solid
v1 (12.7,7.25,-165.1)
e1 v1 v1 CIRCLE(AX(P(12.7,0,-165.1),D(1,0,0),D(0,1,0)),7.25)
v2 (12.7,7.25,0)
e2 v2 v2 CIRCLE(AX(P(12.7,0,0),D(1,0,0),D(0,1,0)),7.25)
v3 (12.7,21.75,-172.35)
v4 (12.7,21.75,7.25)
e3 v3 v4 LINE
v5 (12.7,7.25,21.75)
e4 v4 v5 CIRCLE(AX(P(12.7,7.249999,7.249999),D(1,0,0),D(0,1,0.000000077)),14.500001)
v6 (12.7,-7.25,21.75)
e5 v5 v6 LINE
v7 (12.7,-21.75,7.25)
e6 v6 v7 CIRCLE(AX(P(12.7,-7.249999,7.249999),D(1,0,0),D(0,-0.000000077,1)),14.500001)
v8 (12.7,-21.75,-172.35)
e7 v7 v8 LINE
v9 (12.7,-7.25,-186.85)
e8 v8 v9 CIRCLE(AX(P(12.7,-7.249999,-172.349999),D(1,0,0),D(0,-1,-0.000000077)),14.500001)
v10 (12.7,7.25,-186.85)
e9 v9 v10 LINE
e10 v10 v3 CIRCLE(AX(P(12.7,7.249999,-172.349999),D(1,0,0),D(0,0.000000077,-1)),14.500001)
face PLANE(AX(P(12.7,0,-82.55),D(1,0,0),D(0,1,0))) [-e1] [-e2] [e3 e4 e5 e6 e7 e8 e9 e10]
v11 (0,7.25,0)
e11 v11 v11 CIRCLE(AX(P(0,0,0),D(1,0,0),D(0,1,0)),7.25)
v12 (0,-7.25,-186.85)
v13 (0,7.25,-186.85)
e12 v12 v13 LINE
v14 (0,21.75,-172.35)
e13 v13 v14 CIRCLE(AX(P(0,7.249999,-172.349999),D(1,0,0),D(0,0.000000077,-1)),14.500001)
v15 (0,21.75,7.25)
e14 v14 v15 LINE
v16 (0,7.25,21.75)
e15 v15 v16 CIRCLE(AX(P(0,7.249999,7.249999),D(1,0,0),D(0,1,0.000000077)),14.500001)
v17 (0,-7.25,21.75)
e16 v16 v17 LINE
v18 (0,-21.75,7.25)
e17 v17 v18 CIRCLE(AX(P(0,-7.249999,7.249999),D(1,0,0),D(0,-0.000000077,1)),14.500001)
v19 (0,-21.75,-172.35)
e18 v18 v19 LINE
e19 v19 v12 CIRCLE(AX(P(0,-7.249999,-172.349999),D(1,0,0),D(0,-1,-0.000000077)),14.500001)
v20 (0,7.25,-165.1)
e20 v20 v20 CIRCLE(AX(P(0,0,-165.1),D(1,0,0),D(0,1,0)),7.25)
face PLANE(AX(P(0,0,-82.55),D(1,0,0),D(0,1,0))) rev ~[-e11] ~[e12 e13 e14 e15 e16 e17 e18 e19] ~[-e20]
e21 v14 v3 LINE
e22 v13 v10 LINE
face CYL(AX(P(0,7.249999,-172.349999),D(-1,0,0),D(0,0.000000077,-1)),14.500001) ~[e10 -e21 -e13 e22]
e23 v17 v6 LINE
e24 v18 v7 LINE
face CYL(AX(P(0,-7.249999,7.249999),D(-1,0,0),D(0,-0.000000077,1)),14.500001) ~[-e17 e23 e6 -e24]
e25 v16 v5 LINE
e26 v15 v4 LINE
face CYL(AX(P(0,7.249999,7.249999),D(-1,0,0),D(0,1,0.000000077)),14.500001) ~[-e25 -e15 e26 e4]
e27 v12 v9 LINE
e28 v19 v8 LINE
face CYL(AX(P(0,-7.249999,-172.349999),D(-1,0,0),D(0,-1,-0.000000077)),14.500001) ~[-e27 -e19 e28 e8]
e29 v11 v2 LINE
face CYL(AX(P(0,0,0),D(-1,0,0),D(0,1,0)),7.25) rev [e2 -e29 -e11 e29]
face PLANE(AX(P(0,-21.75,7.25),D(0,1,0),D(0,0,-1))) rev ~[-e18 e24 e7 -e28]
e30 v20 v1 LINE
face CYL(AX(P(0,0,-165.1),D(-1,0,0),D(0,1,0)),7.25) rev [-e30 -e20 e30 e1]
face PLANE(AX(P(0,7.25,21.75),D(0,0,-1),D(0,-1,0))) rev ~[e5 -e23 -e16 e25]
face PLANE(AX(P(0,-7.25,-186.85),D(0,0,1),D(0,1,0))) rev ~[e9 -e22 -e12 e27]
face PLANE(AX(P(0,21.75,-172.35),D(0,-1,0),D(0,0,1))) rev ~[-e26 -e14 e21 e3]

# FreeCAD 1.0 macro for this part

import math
import FreeCAD as App
import Part
import Sketcher
from FreeCAD import Vector

doc = App.newDocument("Part")
body = doc.addObject("PartDesign::Body", "Body")

sketch1 = doc.addObject("Sketcher::SketchObject", "Sketch")
body.addObject(sketch1)
sketch1.AttachmentSupport = (doc.YZ_Plane, [""])
sketch1.MapMode = "FlatFace"
sketch1.addGeometry([
    Part.LineSegment(Vector(7, 22, 0), Vector(-7, 22, 0)),
    Part.ArcOfCircle(Part.Circle(Vector(-7, 7, 0), Vector(0, 0, 1), 15), math.radians(90), math.radians(180)),
    Part.LineSegment(Vector(-22, 7, 0), Vector(-22, -172, 0)),
    Part.ArcOfCircle(Part.Circle(Vector(-7, -172, 0), Vector(0, 0, 1), 15), math.radians(-180), math.radians(-90)),
    Part.LineSegment(Vector(-7, -187, 0), Vector(7, -187, 0)),
    Part.ArcOfCircle(Part.Circle(Vector(7, -172, 0), Vector(0, 0, 1), 15), math.radians(-90), math.radians(0)),
    Part.LineSegment(Vector(22, -172, 0), Vector(22, 7, 0)),
    Part.ArcOfCircle(Part.Circle(Vector(7, 7, 0), Vector(0, 0, 1), 15), math.radians(0), math.radians(90)),
    Part.Circle(Vector(0, -165, 0), Vector(0, 0, 1), 7),
    Part.Circle(Vector(0, 0, 0), Vector(0, 0, 1), 7),
], False)
sketch1.addConstraint([
    Sketcher.Constraint("Tangent", 0, 2, 1, 1),
    Sketcher.Constraint("Tangent", 1, 2, 2, 1),
    Sketcher.Constraint("Tangent", 2, 2, 3, 1),
    Sketcher.Constraint("Tangent", 3, 2, 4, 1),
    Sketcher.Constraint("Tangent", 4, 2, 5, 1),
    Sketcher.Constraint("Tangent", 5, 2, 6, 1),
    Sketcher.Constraint("Tangent", 6, 2, 7, 1),
    Sketcher.Constraint("Tangent", 7, 2, 0, 1),
    Sketcher.Constraint("Horizontal", 0),
    Sketcher.Constraint("Vertical", 2),
    Sketcher.Constraint("Horizontal", 4),
    Sketcher.Constraint("Vertical", 6),
    Sketcher.Constraint("Coincident", 9, 3, -1, 1),
    Sketcher.Constraint("Equal", 1, 3),
    Sketcher.Constraint("Equal", 3, 5),
    Sketcher.Constraint("Equal", 5, 7),
    Sketcher.Constraint("Equal", 8, 9),
    Sketcher.Constraint("PointOnObject", 8, 3, -2),
    Sketcher.Constraint("Diameter", 8, 14.5),
    Sketcher.Constraint("Radius", 1, 14.500001),
    Sketcher.Constraint("DistanceX", 0, 2, 0, 1, 14.5),
    Sketcher.Constraint("DistanceY", 2, 2, 2, 1, 179.6),
    Sketcher.Constraint("DistanceY", 8, 3, -1, 1, 165.1),
    Sketcher.Constraint("DistanceX", 1, 3, -1, 1, 7.249999),
    Sketcher.Constraint("DistanceY", -1, 1, 1, 3, 7.249999),
])
pad1 = doc.addObject("PartDesign::Pad", "Pad")
body.addObject(pad1)
pad1.Profile = sketch1
pad1.Length = 12.7

doc.recompute()
